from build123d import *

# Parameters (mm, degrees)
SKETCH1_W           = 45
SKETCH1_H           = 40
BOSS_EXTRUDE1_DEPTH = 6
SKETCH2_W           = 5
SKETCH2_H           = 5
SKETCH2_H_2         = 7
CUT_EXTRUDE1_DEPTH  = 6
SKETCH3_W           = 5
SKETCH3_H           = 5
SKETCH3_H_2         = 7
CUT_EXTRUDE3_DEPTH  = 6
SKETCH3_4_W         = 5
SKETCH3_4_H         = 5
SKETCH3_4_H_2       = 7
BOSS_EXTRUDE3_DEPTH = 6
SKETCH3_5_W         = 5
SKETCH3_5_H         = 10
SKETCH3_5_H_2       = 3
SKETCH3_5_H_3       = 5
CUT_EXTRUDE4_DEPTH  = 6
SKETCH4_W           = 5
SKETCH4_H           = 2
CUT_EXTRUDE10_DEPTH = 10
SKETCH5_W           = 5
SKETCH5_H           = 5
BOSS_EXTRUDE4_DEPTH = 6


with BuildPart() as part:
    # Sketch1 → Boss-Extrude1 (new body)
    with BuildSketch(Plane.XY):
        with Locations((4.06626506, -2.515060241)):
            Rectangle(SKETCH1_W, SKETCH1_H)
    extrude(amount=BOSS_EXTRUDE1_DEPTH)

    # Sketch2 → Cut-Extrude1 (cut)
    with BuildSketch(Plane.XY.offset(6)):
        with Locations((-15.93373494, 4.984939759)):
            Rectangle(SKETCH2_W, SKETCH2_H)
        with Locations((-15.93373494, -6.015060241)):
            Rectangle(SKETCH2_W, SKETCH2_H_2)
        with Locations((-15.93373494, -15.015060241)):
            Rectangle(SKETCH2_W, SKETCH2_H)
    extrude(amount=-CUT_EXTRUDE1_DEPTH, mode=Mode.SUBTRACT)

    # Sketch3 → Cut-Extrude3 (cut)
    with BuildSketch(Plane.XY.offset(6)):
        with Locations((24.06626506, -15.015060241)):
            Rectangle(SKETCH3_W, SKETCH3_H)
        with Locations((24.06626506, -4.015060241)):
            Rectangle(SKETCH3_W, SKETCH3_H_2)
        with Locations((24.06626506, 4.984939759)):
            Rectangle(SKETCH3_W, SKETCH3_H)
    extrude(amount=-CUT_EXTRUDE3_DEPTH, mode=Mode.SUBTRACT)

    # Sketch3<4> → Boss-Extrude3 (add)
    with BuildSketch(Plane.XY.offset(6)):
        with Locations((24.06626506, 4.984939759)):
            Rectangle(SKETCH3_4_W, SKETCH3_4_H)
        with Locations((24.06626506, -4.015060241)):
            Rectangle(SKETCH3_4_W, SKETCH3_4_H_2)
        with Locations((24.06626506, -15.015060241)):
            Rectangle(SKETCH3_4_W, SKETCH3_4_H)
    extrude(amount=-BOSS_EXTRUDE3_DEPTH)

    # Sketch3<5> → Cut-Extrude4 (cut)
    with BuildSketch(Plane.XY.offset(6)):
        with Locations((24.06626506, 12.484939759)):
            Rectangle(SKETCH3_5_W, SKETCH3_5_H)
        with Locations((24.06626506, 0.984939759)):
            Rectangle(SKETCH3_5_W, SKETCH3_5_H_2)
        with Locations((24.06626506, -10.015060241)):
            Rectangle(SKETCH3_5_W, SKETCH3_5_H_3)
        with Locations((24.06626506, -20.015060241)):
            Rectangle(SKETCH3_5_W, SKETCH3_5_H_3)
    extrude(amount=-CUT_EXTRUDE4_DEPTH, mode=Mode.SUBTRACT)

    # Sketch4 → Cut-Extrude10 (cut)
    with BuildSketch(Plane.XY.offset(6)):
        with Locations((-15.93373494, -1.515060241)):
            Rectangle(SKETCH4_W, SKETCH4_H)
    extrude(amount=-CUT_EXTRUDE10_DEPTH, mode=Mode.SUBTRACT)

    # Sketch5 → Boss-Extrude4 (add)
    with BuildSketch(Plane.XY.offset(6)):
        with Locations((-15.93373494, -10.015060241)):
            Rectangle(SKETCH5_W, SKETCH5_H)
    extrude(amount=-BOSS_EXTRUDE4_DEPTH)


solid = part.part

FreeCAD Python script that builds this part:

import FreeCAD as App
import Part
import Sketcher
Q = App.Units.Quantity

doc = App.newDocument("Part")
body = doc.addObject("PartDesign::Body", "Body")

# Sketch on XY plane
sketch1 = doc.addObject("Sketcher::SketchObject", "Sketch")
body.addObject(sketch1)
sketch1.AttachmentSupport = (doc.XY_Plane, [""])
sketch1.MapMode = "FlatFace"
sketch1.addGeometry(Part.LineSegment(App.Vector(-18, 17, 0), App.Vector(-18, -23, 0)), False)
sketch1.addGeometry(Part.LineSegment(App.Vector(-18, -23, 0), App.Vector(27, -23, 0)), False)
sketch1.addGeometry(Part.LineSegment(App.Vector(27, -23, 0), App.Vector(27, 17, 0)), False)
sketch1.addGeometry(Part.LineSegment(App.Vector(27, 17, 0), App.Vector(-18, 17, 0)), False)
sketch1.addConstraint(Sketcher.Constraint("Coincident", 0, 2, 1, 1))
sketch1.addConstraint(Sketcher.Constraint("Coincident", 1, 2, 2, 1))
sketch1.addConstraint(Sketcher.Constraint("Coincident", 2, 2, 3, 1))
sketch1.addConstraint(Sketcher.Constraint("Coincident", 3, 2, 0, 1))
sketch1.addConstraint(Sketcher.Constraint("Vertical", 0))
sketch1.addConstraint(Sketcher.Constraint("Horizontal", 1))
sketch1.addConstraint(Sketcher.Constraint("Vertical", 2))
sketch1.addConstraint(Sketcher.Constraint("Horizontal", 3))
sketch1.addConstraint(Sketcher.Constraint("DistanceX", 1, 1, 1, 2, Q("45 mm")))
sketch1.addConstraint(Sketcher.Constraint("DistanceY", 0, 2, 0, 1, Q("40 mm")))
sketch1.addConstraint(Sketcher.Constraint("DistanceY", 0, 2, -1, 1, Q("22.51506 mm")))
sketch1.addConstraint(Sketcher.Constraint("DistanceX", 0, 2, -1, 1, Q("18.433735 mm")))
pad1 = doc.addObject("PartDesign::Pad", "Pad")
body.addObject(pad1)
pad1.Profile = sketch1
pad1.Length = 6

# Sketch on XY plane
sketch2 = doc.addObject("Sketcher::SketchObject", "Sketch001")
body.addObject(sketch2)
sketch2.AttachmentSupport = (doc.XY_Plane, [""])
sketch2.MapMode = "FlatFace"
sketch2.AttachmentOffset = App.Placement(App.Vector(0, 0, 6), App.Rotation())
sketch2.addGeometry(Part.LineSegment(App.Vector(-18, 7, 0), App.Vector(-18, 2, 0)), False)
sketch2.addGeometry(Part.LineSegment(App.Vector(-18, 2, 0), App.Vector(-13, 2, 0)), False)
sketch2.addGeometry(Part.LineSegment(App.Vector(-13, 2, 0), App.Vector(-13, 7, 0)), False)
sketch2.addGeometry(Part.LineSegment(App.Vector(-13, 7, 0), App.Vector(-18, 7, 0)), False)
sketch2.addGeometry(Part.LineSegment(App.Vector(-18, -3, 0), App.Vector(-18, -10, 0)), False)
sketch2.addGeometry(Part.LineSegment(App.Vector(-18, -10, 0), App.Vector(-13, -10, 0)), False)
sketch2.addGeometry(Part.LineSegment(App.Vector(-13, -10, 0), App.Vector(-13, -3, 0)), False)
sketch2.addGeometry(Part.LineSegment(App.Vector(-13, -3, 0), App.Vector(-18, -3, 0)), False)
sketch2.addGeometry(Part.LineSegment(App.Vector(-18, -13, 0), App.Vector(-18, -18, 0)), False)
sketch2.addGeometry(Part.LineSegment(App.Vector(-18, -18, 0), App.Vector(-13, -18, 0)), False)
sketch2.addGeometry(Part.LineSegment(App.Vector(-13, -18, 0), App.Vector(-13, -13, 0)), False)
sketch2.addGeometry(Part.LineSegment(App.Vector(-13, -13, 0), App.Vector(-18, -13, 0)), False)
sketch2.addConstraint(Sketcher.Constraint("Coincident", 0, 2, 1, 1))
sketch2.addConstraint(Sketcher.Constraint("Coincident", 1, 2, 2, 1))
sketch2.addConstraint(Sketcher.Constraint("Coincident", 2, 2, 3, 1))
sketch2.addConstraint(Sketcher.Constraint("Coincident", 3, 2, 0, 1))
sketch2.addConstraint(Sketcher.Constraint("Coincident", 4, 2, 5, 1))
sketch2.addConstraint(Sketcher.Constraint("Coincident", 5, 2, 6, 1))
sketch2.addConstraint(Sketcher.Constraint("Coincident", 6, 2, 7, 1))
sketch2.addConstraint(Sketcher.Constraint("Coincident", 7, 2, 4, 1))
sketch2.addConstraint(Sketcher.Constraint("Coincident", 8, 2, 9, 1))
sketch2.addConstraint(Sketcher.Constraint("Coincident", 9, 2, 10, 1))
sketch2.addConstraint(Sketcher.Constraint("Coincident", 10, 2, 11, 1))
sketch2.addConstraint(Sketcher.Constraint("Coincident", 11, 2, 8, 1))
sketch2.addConstraint(Sketcher.Constraint("Vertical", 0))
sketch2.addConstraint(Sketcher.Constraint("Horizontal", 1))
sketch2.addConstraint(Sketcher.Constraint("Vertical", 2))
sketch2.addConstraint(Sketcher.Constraint("Horizontal", 3))
sketch2.addConstraint(Sketcher.Constraint("Vertical", 4))
sketch2.addConstraint(Sketcher.Constraint("Horizontal", 5))
sketch2.addConstraint(Sketcher.Constraint("Vertical", 6))
sketch2.addConstraint(Sketcher.Constraint("Horizontal", 7))
sketch2.addConstraint(Sketcher.Constraint("Vertical", 8))
sketch2.addConstraint(Sketcher.Constraint("Horizontal", 9))
sketch2.addConstraint(Sketcher.Constraint("Vertical", 10))
sketch2.addConstraint(Sketcher.Constraint("Horizontal", 11))
sketch2.addConstraint(Sketcher.Constraint("Vertical", 3, 2, 4, 2))
sketch2.addConstraint(Sketcher.Constraint("Vertical", 2, 2, 5, 2))
sketch2.addConstraint(Sketcher.Constraint("Vertical", 7, 2, 8, 2))
sketch2.addConstraint(Sketcher.Constraint("Vertical", 6, 2, 9, 2))
sketch2.addConstraint(Sketcher.Constraint("Equal", 11, 0))
sketch2.addConstraint(Sketcher.Constraint("Equal", 2, 8))
sketch2.addConstraint(Sketcher.Constraint("DistanceX", 1, 1, 1, 2, Q("5 mm")))
sketch2.addConstraint(Sketcher.Constraint("DistanceY", 4, 2, 4, 1, Q("7 mm")))
sketch2.addConstraint(Sketcher.Constraint("DistanceY", 4, 2, 0, 2, Q("12 mm")))
sketch2.addConstraint(Sketcher.Constraint("DistanceY", 8, 2, 4, 2, Q("8 mm")))
sketch2.addConstraint(Sketcher.Constraint("DistanceY", -1, 1, 0, 2, Q("2.48494 mm")))
sketch2.addConstraint(Sketcher.Constraint("DistanceX", 0, 2, -1, 1, Q("18.433735 mm")))
pocket1 = doc.addObject("PartDesign::Pocket", "Pocket")
body.addObject(pocket1)
pocket1.Profile = sketch2
pocket1.Length = 6

# Sketch on XY plane
sketch3 = doc.addObject("Sketcher::SketchObject", "Sketch002")
body.addObject(sketch3)
sketch3.AttachmentSupport = (doc.XY_Plane, [""])
sketch3.MapMode = "FlatFace"
sketch3.AttachmentOffset = App.Placement(App.Vector(0, 0, 6), App.Rotation())
sketch3.addGeometry(Part.LineSegment(App.Vector(22, -13, 0), App.Vector(22, -18, 0)), False)
sketch3.addGeometry(Part.LineSegment(App.Vector(22, -18, 0), App.Vector(27, -18, 0)), False)
sketch3.addGeometry(Part.LineSegment(App.Vector(27, -18, 0), App.Vector(27, -13, 0)), False)
sketch3.addGeometry(Part.LineSegment(App.Vector(27, -13, 0), App.Vector(22, -13, 0)), False)
sketch3.addGeometry(Part.LineSegment(App.Vector(22, -1, 0), App.Vector(22, -8, 0)), False)
sketch3.addGeometry(Part.LineSegment(App.Vector(22, -8, 0), App.Vector(27, -8, 0)), False)
sketch3.addGeometry(Part.LineSegment(App.Vector(27, -8, 0), App.Vector(27, -1, 0)), False)
sketch3.addGeometry(Part.LineSegment(App.Vector(27, -1, 0), App.Vector(22, -1, 0)), False)
sketch3.addGeometry(Part.LineSegment(App.Vector(22, 7, 0), App.Vector(22, 2, 0)), False)
sketch3.addGeometry(Part.LineSegment(App.Vector(22, 2, 0), App.Vector(27, 2, 0)), False)
sketch3.addGeometry(Part.LineSegment(App.Vector(27, 2, 0), App.Vector(27, 7, 0)), False)
sketch3.addGeometry(Part.LineSegment(App.Vector(27, 7, 0), App.Vector(22, 7, 0)), False)
sketch3.addConstraint(Sketcher.Constraint("Coincident", 0, 2, 1, 1))
sketch3.addConstraint(Sketcher.Constraint("Coincident", 1, 2, 2, 1))
sketch3.addConstraint(Sketcher.Constraint("Coincident", 2, 2, 3, 1))
sketch3.addConstraint(Sketcher.Constraint("Coincident", 3, 2, 0, 1))
sketch3.addConstraint(Sketcher.Constraint("Coincident", 4, 2, 5, 1))
sketch3.addConstraint(Sketcher.Constraint("Coincident", 5, 2, 6, 1))
sketch3.addConstraint(Sketcher.Constraint("Coincident", 6, 2, 7, 1))
sketch3.addConstraint(Sketcher.Constraint("Coincident", 7, 2, 4, 1))
sketch3.addConstraint(Sketcher.Constraint("Coincident", 8, 2, 9, 1))
sketch3.addConstraint(Sketcher.Constraint("Coincident", 9, 2, 10, 1))
sketch3.addConstraint(Sketcher.Constraint("Coincident", 10, 2, 11, 1))
sketch3.addConstraint(Sketcher.Constraint("Coincident", 11, 2, 8, 1))
sketch3.addConstraint(Sketcher.Constraint("Vertical", 0))
sketch3.addConstraint(Sketcher.Constraint("Horizontal", 1))
sketch3.addConstraint(Sketcher.Constraint("Vertical", 2))
sketch3.addConstraint(Sketcher.Constraint("Horizontal", 3))
sketch3.addConstraint(Sketcher.Constraint("Vertical", 4))
sketch3.addConstraint(Sketcher.Constraint("Horizontal", 5))
sketch3.addConstraint(Sketcher.Constraint("Vertical", 6))
sketch3.addConstraint(Sketcher.Constraint("Horizontal", 7))
sketch3.addConstraint(Sketcher.Constraint("Vertical", 8))
sketch3.addConstraint(Sketcher.Constraint("Horizontal", 9))
sketch3.addConstraint(Sketcher.Constraint("Vertical", 10))
sketch3.addConstraint(Sketcher.Constraint("Horizontal", 11))
sketch3.addConstraint(Sketcher.Constraint("Vertical", 3, 2, 4, 2))
sketch3.addConstraint(Sketcher.Constraint("Vertical", 2, 2, 5, 2))
sketch3.addConstraint(Sketcher.Constraint("Vertical", 7, 2, 8, 2))
sketch3.addConstraint(Sketcher.Constraint("Vertical", 6, 2, 9, 2))
sketch3.addConstraint(Sketcher.Constraint("Equal", 11, 0))
sketch3.addConstraint(Sketcher.Constraint("Equal", 2, 8))
sketch3.addConstraint(Sketcher.Constraint("DistanceX", 1, 1, 1, 2, Q("5 mm")))
sketch3.addConstraint(Sketcher.Constraint("DistanceY", 4, 2, 4, 1, Q("7 mm")))
sketch3.addConstraint(Sketcher.Constraint("DistanceY", 3, 2, 4, 2, Q("5 mm")))
sketch3.addConstraint(Sketcher.Constraint("DistanceY", 7, 2, 8, 2, Q("3 mm")))
sketch3.addConstraint(Sketcher.Constraint("DistanceY", 0, 2, -1, 1, Q("17.51506 mm")))
sketch3.addConstraint(Sketcher.Constraint("DistanceX", -1, 1, 0, 2, Q("21.566265 mm")))
pocket2 = doc.addObject("PartDesign::Pocket", "Pocket001")
body.addObject(pocket2)
pocket2.Profile = sketch3
pocket2.Length = 6

# Sketch on XY plane
sketch4 = doc.addObject("Sketcher::SketchObject", "Sketch003")
body.addObject(sketch4)
sketch4.AttachmentSupport = (doc.XY_Plane, [""])
sketch4.MapMode = "FlatFace"
sketch4.AttachmentOffset = App.Placement(App.Vector(0, 0, 6), App.Rotation())
sketch4.addGeometry(Part.LineSegment(App.Vector(22, 7, 0), App.Vector(22, 2, 0)), False)
sketch4.addGeometry(Part.LineSegment(App.Vector(22, 2, 0), App.Vector(27, 2, 0)), False)
sketch4.addGeometry(Part.LineSegment(App.Vector(27, 2, 0), App.Vector(27, 7, 0)), False)
sketch4.addGeometry(Part.LineSegment(App.Vector(27, 7, 0), App.Vector(22, 7, 0)), False)
sketch4.addGeometry(Part.LineSegment(App.Vector(22, -1, 0), App.Vector(22, -8, 0)), False)
sketch4.addGeometry(Part.LineSegment(App.Vector(22, -8, 0), App.Vector(27, -8, 0)), False)
sketch4.addGeometry(Part.LineSegment(App.Vector(27, -8, 0), App.Vector(27, -1, 0)), False)
sketch4.addGeometry(Part.LineSegment(App.Vector(27, -1, 0), App.Vector(22, -1, 0)), False)
sketch4.addGeometry(Part.LineSegment(App.Vector(22, -13, 0), App.Vector(22, -18, 0)), False)
sketch4.addGeometry(Part.LineSegment(App.Vector(22, -18, 0), App.Vector(27, -18, 0)), False)
sketch4.addGeometry(Part.LineSegment(App.Vector(27, -18, 0), App.Vector(27, -13, 0)), False)
sketch4.addGeometry(Part.LineSegment(App.Vector(27, -13, 0), App.Vector(22, -13, 0)), False)
sketch4.addConstraint(Sketcher.Constraint("Coincident", 0, 2, 1, 1))
sketch4.addConstraint(Sketcher.Constraint("Coincident", 1, 2, 2, 1))
sketch4.addConstraint(Sketcher.Constraint("Coincident", 2, 2, 3, 1))
sketch4.addConstraint(Sketcher.Constraint("Coincident", 3, 2, 0, 1))
sketch4.addConstraint(Sketcher.Constraint("Coincident", 4, 2, 5, 1))
sketch4.addConstraint(Sketcher.Constraint("Coincident", 5, 2, 6, 1))
sketch4.addConstraint(Sketcher.Constraint("Coincident", 6, 2, 7, 1))
sketch4.addConstraint(Sketcher.Constraint("Coincident", 7, 2, 4, 1))
sketch4.addConstraint(Sketcher.Constraint("Coincident", 8, 2, 9, 1))
sketch4.addConstraint(Sketcher.Constraint("Coincident", 9, 2, 10, 1))
sketch4.addConstraint(Sketcher.Constraint("Coincident", 10, 2, 11, 1))
sketch4.addConstraint(Sketcher.Constraint("Coincident", 11, 2, 8, 1))
sketch4.addConstraint(Sketcher.Constraint("Vertical", 0))
sketch4.addConstraint(Sketcher.Constraint("Horizontal", 1))
sketch4.addConstraint(Sketcher.Constraint("Vertical", 2))
sketch4.addConstraint(Sketcher.Constraint("Horizontal", 3))
sketch4.addConstraint(Sketcher.Constraint("Vertical", 4))
sketch4.addConstraint(Sketcher.Constraint("Horizontal", 5))
sketch4.addConstraint(Sketcher.Constraint("Vertical", 6))
sketch4.addConstraint(Sketcher.Constraint("Horizontal", 7))
sketch4.addConstraint(Sketcher.Constraint("Vertical", 8))
sketch4.addConstraint(Sketcher.Constraint("Horizontal", 9))
sketch4.addConstraint(Sketcher.Constraint("Vertical", 10))
sketch4.addConstraint(Sketcher.Constraint("Horizontal", 11))
sketch4.addConstraint(Sketcher.Constraint("Vertical", 3, 2, 4, 2))
sketch4.addConstraint(Sketcher.Constraint("Vertical", 2, 2, 5, 2))
sketch4.addConstraint(Sketcher.Constraint("Vertical", 7, 2, 8, 2))
sketch4.addConstraint(Sketcher.Constraint("Vertical", 6, 2, 9, 2))
sketch4.addConstraint(Sketcher.Constraint("Equal", 11, 0))
sketch4.addConstraint(Sketcher.Constraint("Equal", 2, 8))
sketch4.addConstraint(Sketcher.Constraint("DistanceX", 1, 1, 1, 2, Q("5 mm")))
sketch4.addConstraint(Sketcher.Constraint("DistanceY", 4, 2, 4, 1, Q("7 mm")))
sketch4.addConstraint(Sketcher.Constraint("DistanceY", 4, 2, 0, 2, Q("10 mm")))
sketch4.addConstraint(Sketcher.Constraint("DistanceY", 8, 2, 4, 2, Q("10 mm")))
sketch4.addConstraint(Sketcher.Constraint("DistanceY", -1, 1, 0, 2, Q("2.48494 mm")))
sketch4.addConstraint(Sketcher.Constraint("DistanceX", -1, 1, 0, 2, Q("21.566265 mm")))
pad2 = doc.addObject("PartDesign::Pad", "Pad001")
body.addObject(pad2)
pad2.Profile = sketch4
pad2.Length = 6
pad2.Reversed = True

# Sketch on XY plane
sketch5 = doc.addObject("Sketcher::SketchObject", "Sketch004")
body.addObject(sketch5)
sketch5.AttachmentSupport = (doc.XY_Plane, [""])
sketch5.MapMode = "FlatFace"
sketch5.AttachmentOffset = App.Placement(App.Vector(0, 0, 6), App.Rotation())
sketch5.addGeometry(Part.LineSegment(App.Vector(21.6, 17.5, 0), App.Vector(21.6, 7.5, 0)), False)
sketch5.addGeometry(Part.LineSegment(App.Vector(21.6, 7.5, 0), App.Vector(26.6, 7.5, 0)), False)
sketch5.addGeometry(Part.LineSegment(App.Vector(26.6, 7.5, 0), App.Vector(26.6, 17.5, 0)), False)
sketch5.addGeometry(Part.LineSegment(App.Vector(26.6, 17.5, 0), App.Vector(21.6, 17.5, 0)), False)
sketch5.addGeometry(Part.LineSegment(App.Vector(21.6, 2.5, 0), App.Vector(21.6, -0.5, 0)), False)
sketch5.addGeometry(Part.LineSegment(App.Vector(21.6, -0.5, 0), App.Vector(26.6, -0.5, 0)), False)
sketch5.addGeometry(Part.LineSegment(App.Vector(26.6, -0.5, 0), App.Vector(26.6, 2.5, 0)), False)
sketch5.addGeometry(Part.LineSegment(App.Vector(26.6, 2.5, 0), App.Vector(21.6, 2.5, 0)), False)
sketch5.addGeometry(Part.LineSegment(App.Vector(21.6, -7.5, 0), App.Vector(21.6, -12.5, 0)), False)
sketch5.addGeometry(Part.LineSegment(App.Vector(21.6, -12.5, 0), App.Vector(26.6, -12.5, 0)), False)
sketch5.addGeometry(Part.LineSegment(App.Vector(26.6, -12.5, 0), App.Vector(26.6, -7.5, 0)), False)
sketch5.addGeometry(Part.LineSegment(App.Vector(26.6, -7.5, 0), App.Vector(21.6, -7.5, 0)), False)
sketch5.addGeometry(Part.LineSegment(App.Vector(21.6, -17.5, 0), App.Vector(21.6, -22.5, 0)), False)
sketch5.addGeometry(Part.LineSegment(App.Vector(21.6, -22.5, 0), App.Vector(26.6, -22.5, 0)), False)
sketch5.addGeometry(Part.LineSegment(App.Vector(26.6, -22.5, 0), App.Vector(26.6, -17.5, 0)), False)
sketch5.addGeometry(Part.LineSegment(App.Vector(26.6, -17.5, 0), App.Vector(21.6, -17.5, 0)), False)
sketch5.addConstraint(Sketcher.Constraint("Coincident", 0, 2, 1, 1))
sketch5.addConstraint(Sketcher.Constraint("Coincident", 1, 2, 2, 1))
sketch5.addConstraint(Sketcher.Constraint("Coincident", 2, 2, 3, 1))
sketch5.addConstraint(Sketcher.Constraint("Coincident", 3, 2, 0, 1))
sketch5.addConstraint(Sketcher.Constraint("Coincident", 4, 2, 5, 1))
sketch5.addConstraint(Sketcher.Constraint("Coincident", 5, 2, 6, 1))
sketch5.addConstraint(Sketcher.Constraint("Coincident", 6, 2, 7, 1))
sketch5.addConstraint(Sketcher.Constraint("Coincident", 7, 2, 4, 1))
sketch5.addConstraint(Sketcher.Constraint("Coincident", 8, 2, 9, 1))
sketch5.addConstraint(Sketcher.Constraint("Coincident", 9, 2, 10, 1))
sketch5.addConstraint(Sketcher.Constraint("Coincident", 10, 2, 11, 1))
sketch5.addConstraint(Sketcher.Constraint("Coincident", 11, 2, 8, 1))
sketch5.addConstraint(Sketcher.Constraint("Coincident", 12, 2, 13, 1))
sketch5.addConstraint(Sketcher.Constraint("Coincident", 13, 2, 14, 1))
sketch5.addConstraint(Sketcher.Constraint("Coincident", 14, 2, 15, 1))
sketch5.addConstraint(Sketcher.Constraint("Coincident", 15, 2, 12, 1))
sketch5.addConstraint(Sketcher.Constraint("Vertical", 0))
sketch5.addConstraint(Sketcher.Constraint("Horizontal", 1))
sketch5.addConstraint(Sketcher.Constraint("Vertical", 2))
sketch5.addConstraint(Sketcher.Constraint("Horizontal", 3))
sketch5.addConstraint(Sketcher.Constraint("Vertical", 4))
sketch5.addConstraint(Sketcher.Constraint("Horizontal", 5))
sketch5.addConstraint(Sketcher.Constraint("Vertical", 6))
sketch5.addConstraint(Sketcher.Constraint("Horizontal", 7))
sketch5.addConstraint(Sketcher.Constraint("Vertical", 8))
sketch5.addConstraint(Sketcher.Constraint("Horizontal", 9))
sketch5.addConstraint(Sketcher.Constraint("Vertical", 10))
sketch5.addConstraint(Sketcher.Constraint("Horizontal", 11))
sketch5.addConstraint(Sketcher.Constraint("Vertical", 12))
sketch5.addConstraint(Sketcher.Constraint("Horizontal", 13))
sketch5.addConstraint(Sketcher.Constraint("Vertical", 14))
sketch5.addConstraint(Sketcher.Constraint("Horizontal", 15))
sketch5.addConstraint(Sketcher.Constraint("Vertical", 3, 2, 4, 2))
sketch5.addConstraint(Sketcher.Constraint("Vertical", 2, 2, 5, 2))
sketch5.addConstraint(Sketcher.Constraint("Vertical", 7, 2, 8, 2))
sketch5.addConstraint(Sketcher.Constraint("Vertical", 6, 2, 9, 2))
sketch5.addConstraint(Sketcher.Constraint("Vertical", 11, 2, 12, 2))
sketch5.addConstraint(Sketcher.Constraint("Vertical", 10, 2, 13, 2))
sketch5.addConstraint(Sketcher.Constraint("Equal", 15, 8))
sketch5.addConstraint(Sketcher.Constraint("Equal", 10, 12))
sketch5.addConstraint(Sketcher.Constraint("DistanceX", 1, 1, 1, 2, Q("5 mm")))
sketch5.addConstraint(Sketcher.Constraint("DistanceY", 0, 2, 0, 1, Q("10 mm")))
sketch5.addConstraint(Sketcher.Constraint("DistanceY", 4, 2, 4, 1, Q("3 mm")))
sketch5.addConstraint(Sketcher.Constraint("DistanceY", 4, 2, 0, 2, Q("8 mm")))
sketch5.addConstraint(Sketcher.Constraint("DistanceY", 8, 2, 4, 2, Q("12 mm")))
sketch5.addConstraint(Sketcher.Constraint("DistanceY", 12, 2, 8, 2, Q("10 mm")))
sketch5.addConstraint(Sketcher.Constraint("DistanceY", -1, 1, 0, 2, Q("7.48494 mm")))
sketch5.addConstraint(Sketcher.Constraint("DistanceX", -1, 1, 0, 2, Q("21.566265 mm")))
pocket3 = doc.addObject("PartDesign::Pocket", "Pocket002")
body.addObject(pocket3)
pocket3.Profile = sketch5
pocket3.Length = 6

# Sketch on XY plane
sketch6 = doc.addObject("Sketcher::SketchObject", "Sketch005")
body.addObject(sketch6)
sketch6.AttachmentSupport = (doc.XY_Plane, [""])
sketch6.MapMode = "FlatFace"
sketch6.AttachmentOffset = App.Placement(App.Vector(0, 0, 6), App.Rotation())
sketch6.addGeometry(Part.LineSegment(App.Vector(-18.4, -0.5, 0), App.Vector(-18.4, -2.5, 0)), False)
sketch6.addGeometry(Part.LineSegment(App.Vector(-18.4, -2.5, 0), App.Vector(-13.4, -2.5, 0)), False)
sketch6.addGeometry(Part.LineSegment(App.Vector(-13.4, -2.5, 0), App.Vector(-13.4, -0.5, 0)), False)
sketch6.addGeometry(Part.LineSegment(App.Vector(-13.4, -0.5, 0), App.Vector(-18.4, -0.5, 0)), False)
sketch6.addConstraint(Sketcher.Constraint("Coincident", 0, 2, 1, 1))
sketch6.addConstraint(Sketcher.Constraint("Coincident", 1, 2, 2, 1))
sketch6.addConstraint(Sketcher.Constraint("Coincident", 2, 2, 3, 1))
sketch6.addConstraint(Sketcher.Constraint("Coincident", 3, 2, 0, 1))
sketch6.addConstraint(Sketcher.Constraint("Vertical", 0))
sketch6.addConstraint(Sketcher.Constraint("Horizontal", 1))
sketch6.addConstraint(Sketcher.Constraint("Vertical", 2))
sketch6.addConstraint(Sketcher.Constraint("Horizontal", 3))
sketch6.addConstraint(Sketcher.Constraint("DistanceX", 1, 1, 1, 2, Q("5 mm")))
sketch6.addConstraint(Sketcher.Constraint("DistanceY", 0, 2, 0, 1, Q("2 mm")))
sketch6.addConstraint(Sketcher.Constraint("DistanceY", 0, 2, -1, 1, Q("2.51506 mm")))
sketch6.addConstraint(Sketcher.Constraint("DistanceX", 0, 2, -1, 1, Q("18.433735 mm")))
pocket4 = doc.addObject("PartDesign::Pocket", "Pocket003")
body.addObject(pocket4)
pocket4.Profile = sketch6
pocket4.Length = 10

# Sketch on XY plane
sketch7 = doc.addObject("Sketcher::SketchObject", "Sketch006")
body.addObject(sketch7)
sketch7.AttachmentSupport = (doc.XY_Plane, [""])
sketch7.MapMode = "FlatFace"
sketch7.AttachmentOffset = App.Placement(App.Vector(0, 0, 6), App.Rotation())
sketch7.addGeometry(Part.LineSegment(App.Vector(-18, -8, 0), App.Vector(-18, -13, 0)), False)
sketch7.addGeometry(Part.LineSegment(App.Vector(-18, -13, 0), App.Vector(-13, -13, 0)), False)
sketch7.addGeometry(Part.LineSegment(App.Vector(-13, -13, 0), App.Vector(-13, -8, 0)), False)
sketch7.addGeometry(Part.LineSegment(App.Vector(-13, -8, 0), App.Vector(-18, -8, 0)), False)
sketch7.addConstraint(Sketcher.Constraint("Coincident", 0, 2, 1, 1))
sketch7.addConstraint(Sketcher.Constraint("Coincident", 1, 2, 2, 1))
sketch7.addConstraint(Sketcher.Constraint("Coincident", 2, 2, 3, 1))
sketch7.addConstraint(Sketcher.Constraint("Coincident", 3, 2, 0, 1))
sketch7.addConstraint(Sketcher.Constraint("Vertical", 0))
sketch7.addConstraint(Sketcher.Constraint("Horizontal", 1))
sketch7.addConstraint(Sketcher.Constraint("Vertical", 2))
sketch7.addConstraint(Sketcher.Constraint("Horizontal", 3))
sketch7.addConstraint(Sketcher.Constraint("Equal", 3, 0))
sketch7.addConstraint(Sketcher.Constraint("DistanceX", 1, 1, 1, 2, Q("5 mm")))
sketch7.addConstraint(Sketcher.Constraint("DistanceY", 0, 2, -1, 1, Q("12.51506 mm")))
sketch7.addConstraint(Sketcher.Constraint("DistanceX", 0, 2, -1, 1, Q("18.433735 mm")))
pad3 = doc.addObject("PartDesign::Pad", "Pad002")
body.addObject(pad3)
pad3.Profile = sketch7
pad3.Length = 6
pad3.Reversed = True

doc.recompute()
